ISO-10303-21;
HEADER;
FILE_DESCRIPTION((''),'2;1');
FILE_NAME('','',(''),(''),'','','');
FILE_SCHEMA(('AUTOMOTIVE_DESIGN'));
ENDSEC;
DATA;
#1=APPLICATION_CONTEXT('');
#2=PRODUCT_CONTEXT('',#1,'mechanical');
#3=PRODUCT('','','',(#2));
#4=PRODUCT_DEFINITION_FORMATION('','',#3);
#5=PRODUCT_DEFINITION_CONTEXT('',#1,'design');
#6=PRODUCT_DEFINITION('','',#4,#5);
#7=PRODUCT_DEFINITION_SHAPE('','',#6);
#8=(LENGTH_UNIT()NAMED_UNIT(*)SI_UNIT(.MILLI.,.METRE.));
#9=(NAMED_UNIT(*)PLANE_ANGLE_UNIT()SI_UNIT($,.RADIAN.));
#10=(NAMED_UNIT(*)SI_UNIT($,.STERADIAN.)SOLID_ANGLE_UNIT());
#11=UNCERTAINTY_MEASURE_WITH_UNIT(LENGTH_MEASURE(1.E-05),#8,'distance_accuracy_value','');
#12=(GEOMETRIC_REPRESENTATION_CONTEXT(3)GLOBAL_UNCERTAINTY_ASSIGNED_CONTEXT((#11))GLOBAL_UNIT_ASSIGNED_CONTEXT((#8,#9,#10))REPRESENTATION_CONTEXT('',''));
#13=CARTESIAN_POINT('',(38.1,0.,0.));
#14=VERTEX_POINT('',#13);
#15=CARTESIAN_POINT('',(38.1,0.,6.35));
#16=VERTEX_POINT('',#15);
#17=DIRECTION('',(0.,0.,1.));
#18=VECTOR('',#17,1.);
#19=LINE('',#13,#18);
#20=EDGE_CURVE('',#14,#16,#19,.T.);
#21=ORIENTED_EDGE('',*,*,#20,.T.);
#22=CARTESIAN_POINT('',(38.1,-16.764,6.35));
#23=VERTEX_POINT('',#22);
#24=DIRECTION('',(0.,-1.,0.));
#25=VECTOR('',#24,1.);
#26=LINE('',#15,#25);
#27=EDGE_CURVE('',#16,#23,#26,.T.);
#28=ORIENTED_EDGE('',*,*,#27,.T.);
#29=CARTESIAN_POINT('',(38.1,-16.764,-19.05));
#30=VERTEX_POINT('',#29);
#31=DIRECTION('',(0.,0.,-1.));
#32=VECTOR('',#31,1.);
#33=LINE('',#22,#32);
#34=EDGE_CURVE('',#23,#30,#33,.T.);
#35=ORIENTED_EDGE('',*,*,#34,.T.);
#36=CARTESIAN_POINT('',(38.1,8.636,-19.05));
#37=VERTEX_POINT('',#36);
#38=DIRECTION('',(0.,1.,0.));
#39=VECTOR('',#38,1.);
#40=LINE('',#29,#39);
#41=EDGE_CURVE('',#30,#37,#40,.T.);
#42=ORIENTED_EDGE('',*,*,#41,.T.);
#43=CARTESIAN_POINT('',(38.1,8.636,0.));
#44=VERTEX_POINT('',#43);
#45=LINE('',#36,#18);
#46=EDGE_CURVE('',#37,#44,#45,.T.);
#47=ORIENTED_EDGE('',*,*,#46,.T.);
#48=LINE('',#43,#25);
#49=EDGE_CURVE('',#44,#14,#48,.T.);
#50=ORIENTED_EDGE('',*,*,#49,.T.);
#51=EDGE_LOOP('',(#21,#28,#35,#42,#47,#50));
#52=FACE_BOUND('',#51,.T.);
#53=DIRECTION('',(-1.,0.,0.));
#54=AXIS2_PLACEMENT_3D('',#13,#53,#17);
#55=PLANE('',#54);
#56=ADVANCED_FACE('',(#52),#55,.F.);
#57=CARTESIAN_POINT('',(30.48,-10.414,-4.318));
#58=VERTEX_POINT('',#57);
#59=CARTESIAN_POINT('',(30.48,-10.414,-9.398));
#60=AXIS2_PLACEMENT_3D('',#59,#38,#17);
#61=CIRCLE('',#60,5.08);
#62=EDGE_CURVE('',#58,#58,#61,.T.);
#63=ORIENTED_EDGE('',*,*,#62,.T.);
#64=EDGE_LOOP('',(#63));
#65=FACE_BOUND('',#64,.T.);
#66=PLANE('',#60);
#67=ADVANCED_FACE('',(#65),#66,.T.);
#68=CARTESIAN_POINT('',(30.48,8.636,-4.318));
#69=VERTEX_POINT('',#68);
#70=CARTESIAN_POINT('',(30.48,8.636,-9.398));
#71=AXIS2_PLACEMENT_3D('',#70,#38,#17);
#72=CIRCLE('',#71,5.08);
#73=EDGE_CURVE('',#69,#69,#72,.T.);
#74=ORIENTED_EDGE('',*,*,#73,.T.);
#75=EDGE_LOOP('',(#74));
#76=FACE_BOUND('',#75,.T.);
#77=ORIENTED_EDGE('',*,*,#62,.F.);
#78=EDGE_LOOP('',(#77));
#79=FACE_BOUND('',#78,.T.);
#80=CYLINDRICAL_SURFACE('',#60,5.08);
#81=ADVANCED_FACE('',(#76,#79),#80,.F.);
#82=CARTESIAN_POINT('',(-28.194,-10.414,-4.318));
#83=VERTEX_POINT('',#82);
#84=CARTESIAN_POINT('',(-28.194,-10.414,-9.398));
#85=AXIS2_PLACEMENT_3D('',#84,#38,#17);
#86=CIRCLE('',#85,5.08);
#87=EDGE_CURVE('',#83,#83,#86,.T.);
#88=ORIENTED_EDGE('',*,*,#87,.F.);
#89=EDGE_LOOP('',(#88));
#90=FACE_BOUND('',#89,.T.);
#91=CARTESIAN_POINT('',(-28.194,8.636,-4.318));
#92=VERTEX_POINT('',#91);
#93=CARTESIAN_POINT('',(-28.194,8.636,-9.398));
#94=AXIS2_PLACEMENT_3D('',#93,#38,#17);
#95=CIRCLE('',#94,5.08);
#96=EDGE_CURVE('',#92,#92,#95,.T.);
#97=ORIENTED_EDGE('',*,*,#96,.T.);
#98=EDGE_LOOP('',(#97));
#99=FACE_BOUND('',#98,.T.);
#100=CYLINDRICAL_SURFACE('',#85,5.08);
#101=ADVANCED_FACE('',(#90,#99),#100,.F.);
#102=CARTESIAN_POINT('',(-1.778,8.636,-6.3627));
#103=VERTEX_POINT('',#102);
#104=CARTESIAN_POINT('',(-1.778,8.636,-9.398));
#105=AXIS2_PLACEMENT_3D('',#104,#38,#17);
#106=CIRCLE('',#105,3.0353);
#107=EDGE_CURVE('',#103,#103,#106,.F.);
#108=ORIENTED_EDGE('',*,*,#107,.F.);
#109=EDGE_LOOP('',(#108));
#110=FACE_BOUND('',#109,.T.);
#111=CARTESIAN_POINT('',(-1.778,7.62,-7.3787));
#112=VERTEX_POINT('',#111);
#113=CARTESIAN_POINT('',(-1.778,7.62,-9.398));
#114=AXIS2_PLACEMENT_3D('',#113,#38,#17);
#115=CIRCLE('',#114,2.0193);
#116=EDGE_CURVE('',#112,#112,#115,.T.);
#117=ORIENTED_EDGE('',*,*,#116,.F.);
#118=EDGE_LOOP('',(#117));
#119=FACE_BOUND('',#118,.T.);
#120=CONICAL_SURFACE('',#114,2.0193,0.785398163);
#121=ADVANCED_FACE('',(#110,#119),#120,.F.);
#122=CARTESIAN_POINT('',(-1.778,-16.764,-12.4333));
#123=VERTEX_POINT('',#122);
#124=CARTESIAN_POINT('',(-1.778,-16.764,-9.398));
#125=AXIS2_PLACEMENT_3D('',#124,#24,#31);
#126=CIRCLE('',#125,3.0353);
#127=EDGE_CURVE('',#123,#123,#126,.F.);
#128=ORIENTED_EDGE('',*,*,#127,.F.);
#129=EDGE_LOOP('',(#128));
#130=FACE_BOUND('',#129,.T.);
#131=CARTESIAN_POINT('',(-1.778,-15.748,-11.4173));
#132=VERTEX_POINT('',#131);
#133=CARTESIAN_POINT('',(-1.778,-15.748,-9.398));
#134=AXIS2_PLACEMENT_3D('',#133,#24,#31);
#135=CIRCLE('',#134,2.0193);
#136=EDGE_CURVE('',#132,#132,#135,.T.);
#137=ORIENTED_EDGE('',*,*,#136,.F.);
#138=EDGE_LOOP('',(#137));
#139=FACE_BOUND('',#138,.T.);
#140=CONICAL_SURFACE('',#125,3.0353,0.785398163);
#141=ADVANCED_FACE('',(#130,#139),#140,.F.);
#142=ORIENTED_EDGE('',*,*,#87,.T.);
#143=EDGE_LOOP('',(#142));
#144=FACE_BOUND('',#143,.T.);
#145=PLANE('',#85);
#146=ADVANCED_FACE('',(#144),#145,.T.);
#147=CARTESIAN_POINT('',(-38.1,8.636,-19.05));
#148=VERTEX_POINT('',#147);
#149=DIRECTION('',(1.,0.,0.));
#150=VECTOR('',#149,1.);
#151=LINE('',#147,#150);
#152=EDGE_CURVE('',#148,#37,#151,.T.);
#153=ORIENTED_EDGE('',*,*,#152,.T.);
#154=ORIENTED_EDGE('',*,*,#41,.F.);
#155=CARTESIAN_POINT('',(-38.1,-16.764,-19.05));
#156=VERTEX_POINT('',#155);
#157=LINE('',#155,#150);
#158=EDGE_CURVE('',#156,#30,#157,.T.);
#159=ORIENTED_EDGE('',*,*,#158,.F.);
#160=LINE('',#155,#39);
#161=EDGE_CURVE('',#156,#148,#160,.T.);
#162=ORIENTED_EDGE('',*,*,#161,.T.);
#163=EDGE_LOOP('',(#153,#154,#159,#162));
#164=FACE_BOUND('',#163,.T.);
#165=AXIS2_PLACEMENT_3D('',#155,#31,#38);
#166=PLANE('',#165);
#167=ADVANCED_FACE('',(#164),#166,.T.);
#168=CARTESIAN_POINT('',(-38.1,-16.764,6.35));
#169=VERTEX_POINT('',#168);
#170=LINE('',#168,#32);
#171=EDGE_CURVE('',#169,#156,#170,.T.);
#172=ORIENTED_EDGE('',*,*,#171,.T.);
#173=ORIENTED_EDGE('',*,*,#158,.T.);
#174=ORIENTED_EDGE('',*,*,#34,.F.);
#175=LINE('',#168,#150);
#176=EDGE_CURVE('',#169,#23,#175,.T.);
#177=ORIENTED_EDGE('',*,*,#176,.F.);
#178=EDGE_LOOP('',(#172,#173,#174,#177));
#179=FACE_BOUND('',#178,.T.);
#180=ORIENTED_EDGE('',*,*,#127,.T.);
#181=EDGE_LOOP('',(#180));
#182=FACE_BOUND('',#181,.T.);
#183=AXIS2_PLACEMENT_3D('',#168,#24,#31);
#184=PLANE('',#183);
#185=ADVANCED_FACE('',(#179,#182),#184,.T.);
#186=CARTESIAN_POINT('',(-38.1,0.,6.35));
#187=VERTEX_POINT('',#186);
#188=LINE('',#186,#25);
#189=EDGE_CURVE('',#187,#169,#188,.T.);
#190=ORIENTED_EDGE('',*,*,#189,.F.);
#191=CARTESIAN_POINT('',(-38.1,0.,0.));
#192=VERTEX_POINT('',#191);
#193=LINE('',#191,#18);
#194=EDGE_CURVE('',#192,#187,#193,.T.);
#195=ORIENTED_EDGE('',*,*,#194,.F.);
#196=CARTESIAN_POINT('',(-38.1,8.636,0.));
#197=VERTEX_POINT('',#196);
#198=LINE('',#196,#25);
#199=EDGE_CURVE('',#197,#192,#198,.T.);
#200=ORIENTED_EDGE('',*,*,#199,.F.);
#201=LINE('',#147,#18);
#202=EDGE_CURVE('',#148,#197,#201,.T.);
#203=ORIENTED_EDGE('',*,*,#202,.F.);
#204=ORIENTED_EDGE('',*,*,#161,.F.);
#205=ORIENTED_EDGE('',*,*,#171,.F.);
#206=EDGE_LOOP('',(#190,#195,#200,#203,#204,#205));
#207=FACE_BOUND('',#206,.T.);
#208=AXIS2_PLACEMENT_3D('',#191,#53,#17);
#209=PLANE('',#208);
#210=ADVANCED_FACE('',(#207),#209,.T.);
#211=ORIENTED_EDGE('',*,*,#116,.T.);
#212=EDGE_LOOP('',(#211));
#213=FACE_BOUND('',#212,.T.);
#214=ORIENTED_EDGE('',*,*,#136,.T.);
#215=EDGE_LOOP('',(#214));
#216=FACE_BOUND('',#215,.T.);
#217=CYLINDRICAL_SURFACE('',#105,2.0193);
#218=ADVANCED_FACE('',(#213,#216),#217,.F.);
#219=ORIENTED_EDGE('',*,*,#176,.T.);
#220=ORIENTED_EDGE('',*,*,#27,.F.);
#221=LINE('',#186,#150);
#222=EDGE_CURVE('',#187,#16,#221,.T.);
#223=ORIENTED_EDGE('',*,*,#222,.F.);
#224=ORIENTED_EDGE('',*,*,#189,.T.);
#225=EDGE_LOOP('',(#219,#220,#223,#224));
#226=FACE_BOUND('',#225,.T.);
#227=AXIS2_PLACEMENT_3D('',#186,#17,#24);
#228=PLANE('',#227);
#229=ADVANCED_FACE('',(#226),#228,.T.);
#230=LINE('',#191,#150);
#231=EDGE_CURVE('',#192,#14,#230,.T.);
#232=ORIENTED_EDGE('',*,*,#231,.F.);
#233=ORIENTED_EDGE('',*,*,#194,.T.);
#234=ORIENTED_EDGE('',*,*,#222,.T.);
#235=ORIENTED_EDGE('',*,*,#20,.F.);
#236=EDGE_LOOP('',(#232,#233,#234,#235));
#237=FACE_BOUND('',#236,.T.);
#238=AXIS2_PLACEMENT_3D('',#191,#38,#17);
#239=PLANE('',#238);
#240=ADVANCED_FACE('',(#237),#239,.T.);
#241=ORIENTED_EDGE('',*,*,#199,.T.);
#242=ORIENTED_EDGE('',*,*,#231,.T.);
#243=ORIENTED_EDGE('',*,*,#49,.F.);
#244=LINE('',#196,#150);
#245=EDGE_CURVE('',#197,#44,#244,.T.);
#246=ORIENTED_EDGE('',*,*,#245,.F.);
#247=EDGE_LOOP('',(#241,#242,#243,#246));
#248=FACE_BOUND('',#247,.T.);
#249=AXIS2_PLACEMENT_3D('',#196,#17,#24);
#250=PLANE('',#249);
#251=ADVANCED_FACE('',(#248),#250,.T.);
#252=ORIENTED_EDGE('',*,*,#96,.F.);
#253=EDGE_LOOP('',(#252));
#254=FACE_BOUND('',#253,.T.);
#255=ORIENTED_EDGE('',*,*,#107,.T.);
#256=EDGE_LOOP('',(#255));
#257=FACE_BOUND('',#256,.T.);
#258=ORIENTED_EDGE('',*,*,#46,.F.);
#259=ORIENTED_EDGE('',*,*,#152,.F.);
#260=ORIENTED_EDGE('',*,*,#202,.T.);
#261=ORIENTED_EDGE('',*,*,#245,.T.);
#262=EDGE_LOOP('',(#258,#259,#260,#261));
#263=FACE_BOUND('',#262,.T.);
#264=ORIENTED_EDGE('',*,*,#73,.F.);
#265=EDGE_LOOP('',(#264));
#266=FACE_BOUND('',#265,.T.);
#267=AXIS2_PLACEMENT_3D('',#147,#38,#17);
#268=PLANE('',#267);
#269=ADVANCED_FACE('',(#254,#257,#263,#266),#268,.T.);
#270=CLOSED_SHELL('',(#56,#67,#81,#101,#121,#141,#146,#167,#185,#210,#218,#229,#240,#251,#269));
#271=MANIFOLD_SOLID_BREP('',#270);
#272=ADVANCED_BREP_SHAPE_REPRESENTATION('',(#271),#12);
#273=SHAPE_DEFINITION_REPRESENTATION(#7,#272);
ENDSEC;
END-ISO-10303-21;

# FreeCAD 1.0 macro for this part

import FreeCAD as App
import Part
import Sketcher

V = App.Vector
Q = App.Units.Quantity


def edges_at(feature, points):
    """Names of the edges that pass closest to the given points."""
    edges = feature.Shape.Edges
    near = lambda p: min(range(len(edges)), key=lambda i: edges[i].distToShape(Part.Vertex(*p))[0])
    return sorted({f"Edge{near(p) + 1}" for p in points})

doc = App.newDocument("Part")
body = doc.addObject("PartDesign::Body", "Body")

# Sketch on YZ plane
sketch1 = doc.addObject("Sketcher::SketchObject", "Sketch")
body.addObject(sketch1)
sketch1.AttachmentSupport = (doc.YZ_Plane, [""])
sketch1.MapMode = "FlatFace"
sketch1.addGeometry([
    Part.LineSegment(V(0, 0, 0), V(0, 6, 0)),  # 0
    Part.LineSegment(V(0, 6, 0), V(-17, 6, 0)),  # 1
    Part.LineSegment(V(-17, 6, 0), V(-17, -19, 0)),  # 2
    Part.LineSegment(V(-17, -19, 0), V(9, -19, 0)),  # 3
    Part.LineSegment(V(9, -19, 0), V(9, 0, 0)),  # 4
    Part.LineSegment(V(9, 0, 0), V(0, 0, 0)),  # 5
], False)
sketch1.addConstraint([
    Sketcher.Constraint("Coincident", 0, 2, 1, 1),
    Sketcher.Constraint("Coincident", 1, 2, 2, 1),
    Sketcher.Constraint("Coincident", 2, 2, 3, 1),
    Sketcher.Constraint("Coincident", 3, 2, 4, 1),
    Sketcher.Constraint("Coincident", 4, 2, 5, 1),
    Sketcher.Constraint("Coincident", 5, 2, 0, 1),
    Sketcher.Constraint("Vertical", 0),
    Sketcher.Constraint("Horizontal", 1),
    Sketcher.Constraint("Vertical", 2),
    Sketcher.Constraint("Horizontal", 3),
    Sketcher.Constraint("Vertical", 4),
    Sketcher.Constraint("Horizontal", 5),
    Sketcher.Constraint("Coincident", 5, 2, -1, 1),
    Sketcher.Constraint("Equal", 3, 2),
    Sketcher.Constraint("DistanceX", 3, 1, 3, 2, Q("1 in")),
    Sketcher.Constraint("DistanceX", 1, 2, 1, 1, Q("0.66 in")),
    Sketcher.Constraint("DistanceY", 0, 1, 0, 2, Q("0.25 in")),
])
pad1 = doc.addObject("PartDesign::Pad", "Pad")
body.addObject(pad1)
pad1.Profile = sketch1
pad1.Type = "TwoLengths"
pad1.Length = Q("1.5 in")
pad1.Length2 = Q("1.5 in")

# Sketch on XZ plane
sketch2 = doc.addObject("Sketcher::SketchObject", "Sketch001")
body.addObject(sketch2)
sketch2.AttachmentSupport = (doc.XZ_Plane, [""])
sketch2.MapMode = "FlatFace"
sketch2.AttachmentOffset = App.Placement(V(0, 0, -0.34 * 25.4), App.Rotation())
sketch2.addGeometry([
    Part.Circle(V(-28, -9, 0), V(0, 0, 1), 5),
    Part.Circle(V(30, -9, 0), V(0, 0, 1), 5),
], False)
sketch2.addConstraint([
    Sketcher.Constraint("Equal", 0, 1),
    Sketcher.Constraint("Horizontal", 0, 3, 1, 3),
    Sketcher.Constraint("Diameter", 0, Q("0.4 in")),
    Sketcher.Constraint("DistanceX", -1, 1, 1, 3, Q("1.2 in")),
    Sketcher.Constraint("DistanceX", 0, 3, -1, 1, Q("1.11 in")),
    Sketcher.Constraint("DistanceY", 0, 3, -1, 1, Q("0.37 in")),
])
pocket1 = doc.addObject("PartDesign::Pocket", "Pocket")
body.addObject(pocket1)
pocket1.Profile = sketch2
pocket1.Length = Q("0.75 in")
pocket1.Reversed = True

# Sketch on XZ plane
sketch3 = doc.addObject("Sketcher::SketchObject", "Sketch002")
body.addObject(sketch3)
sketch3.AttachmentSupport = (doc.XZ_Plane, [""])
sketch3.MapMode = "FlatFace"
sketch3.AttachmentOffset = App.Placement(V(0, 0, -0.34 * 25.4), App.Rotation())
sketch3.addGeometry(Part.Circle(V(-1.8, -9.4, 0), V(0, 0, 1), 2), False)
sketch3.addConstraint([
    Sketcher.Constraint("Diameter", 0, Q("0.159 in")),
    Sketcher.Constraint("DistanceX", 0, 3, -1, 1, Q("0.07 in")),
    Sketcher.Constraint("DistanceY", 0, 3, -1, 1, Q("0.37 in")),
])
doc.recompute()
hole = doc.addObject("PartDesign::Hole", "Hole")
body.addObject(hole)
hole.Profile = sketch3
hole.ThreadType = "None"
hole.Diameter = Q("0.159 in")
hole.DepthType = "ThroughAll"
hole.Reversed = True
doc.recompute()

chamfer = doc.addObject("PartDesign::Chamfer", "Chamfer")
body.addObject(chamfer)
chamfer.Base = (hole, edges_at(hole, [(-1.778, 8.636, -7.379)]))
chamfer.Size = Q("0.04 in")
doc.recompute()

chamfer2 = doc.addObject("PartDesign::Chamfer", "Chamfer001")
body.addObject(chamfer2)
chamfer2.Base = (chamfer, edges_at(chamfer, [(-1.778, -16.764, -7.379)]))
chamfer2.Size = Q("0.04 in")

doc.recompute()
